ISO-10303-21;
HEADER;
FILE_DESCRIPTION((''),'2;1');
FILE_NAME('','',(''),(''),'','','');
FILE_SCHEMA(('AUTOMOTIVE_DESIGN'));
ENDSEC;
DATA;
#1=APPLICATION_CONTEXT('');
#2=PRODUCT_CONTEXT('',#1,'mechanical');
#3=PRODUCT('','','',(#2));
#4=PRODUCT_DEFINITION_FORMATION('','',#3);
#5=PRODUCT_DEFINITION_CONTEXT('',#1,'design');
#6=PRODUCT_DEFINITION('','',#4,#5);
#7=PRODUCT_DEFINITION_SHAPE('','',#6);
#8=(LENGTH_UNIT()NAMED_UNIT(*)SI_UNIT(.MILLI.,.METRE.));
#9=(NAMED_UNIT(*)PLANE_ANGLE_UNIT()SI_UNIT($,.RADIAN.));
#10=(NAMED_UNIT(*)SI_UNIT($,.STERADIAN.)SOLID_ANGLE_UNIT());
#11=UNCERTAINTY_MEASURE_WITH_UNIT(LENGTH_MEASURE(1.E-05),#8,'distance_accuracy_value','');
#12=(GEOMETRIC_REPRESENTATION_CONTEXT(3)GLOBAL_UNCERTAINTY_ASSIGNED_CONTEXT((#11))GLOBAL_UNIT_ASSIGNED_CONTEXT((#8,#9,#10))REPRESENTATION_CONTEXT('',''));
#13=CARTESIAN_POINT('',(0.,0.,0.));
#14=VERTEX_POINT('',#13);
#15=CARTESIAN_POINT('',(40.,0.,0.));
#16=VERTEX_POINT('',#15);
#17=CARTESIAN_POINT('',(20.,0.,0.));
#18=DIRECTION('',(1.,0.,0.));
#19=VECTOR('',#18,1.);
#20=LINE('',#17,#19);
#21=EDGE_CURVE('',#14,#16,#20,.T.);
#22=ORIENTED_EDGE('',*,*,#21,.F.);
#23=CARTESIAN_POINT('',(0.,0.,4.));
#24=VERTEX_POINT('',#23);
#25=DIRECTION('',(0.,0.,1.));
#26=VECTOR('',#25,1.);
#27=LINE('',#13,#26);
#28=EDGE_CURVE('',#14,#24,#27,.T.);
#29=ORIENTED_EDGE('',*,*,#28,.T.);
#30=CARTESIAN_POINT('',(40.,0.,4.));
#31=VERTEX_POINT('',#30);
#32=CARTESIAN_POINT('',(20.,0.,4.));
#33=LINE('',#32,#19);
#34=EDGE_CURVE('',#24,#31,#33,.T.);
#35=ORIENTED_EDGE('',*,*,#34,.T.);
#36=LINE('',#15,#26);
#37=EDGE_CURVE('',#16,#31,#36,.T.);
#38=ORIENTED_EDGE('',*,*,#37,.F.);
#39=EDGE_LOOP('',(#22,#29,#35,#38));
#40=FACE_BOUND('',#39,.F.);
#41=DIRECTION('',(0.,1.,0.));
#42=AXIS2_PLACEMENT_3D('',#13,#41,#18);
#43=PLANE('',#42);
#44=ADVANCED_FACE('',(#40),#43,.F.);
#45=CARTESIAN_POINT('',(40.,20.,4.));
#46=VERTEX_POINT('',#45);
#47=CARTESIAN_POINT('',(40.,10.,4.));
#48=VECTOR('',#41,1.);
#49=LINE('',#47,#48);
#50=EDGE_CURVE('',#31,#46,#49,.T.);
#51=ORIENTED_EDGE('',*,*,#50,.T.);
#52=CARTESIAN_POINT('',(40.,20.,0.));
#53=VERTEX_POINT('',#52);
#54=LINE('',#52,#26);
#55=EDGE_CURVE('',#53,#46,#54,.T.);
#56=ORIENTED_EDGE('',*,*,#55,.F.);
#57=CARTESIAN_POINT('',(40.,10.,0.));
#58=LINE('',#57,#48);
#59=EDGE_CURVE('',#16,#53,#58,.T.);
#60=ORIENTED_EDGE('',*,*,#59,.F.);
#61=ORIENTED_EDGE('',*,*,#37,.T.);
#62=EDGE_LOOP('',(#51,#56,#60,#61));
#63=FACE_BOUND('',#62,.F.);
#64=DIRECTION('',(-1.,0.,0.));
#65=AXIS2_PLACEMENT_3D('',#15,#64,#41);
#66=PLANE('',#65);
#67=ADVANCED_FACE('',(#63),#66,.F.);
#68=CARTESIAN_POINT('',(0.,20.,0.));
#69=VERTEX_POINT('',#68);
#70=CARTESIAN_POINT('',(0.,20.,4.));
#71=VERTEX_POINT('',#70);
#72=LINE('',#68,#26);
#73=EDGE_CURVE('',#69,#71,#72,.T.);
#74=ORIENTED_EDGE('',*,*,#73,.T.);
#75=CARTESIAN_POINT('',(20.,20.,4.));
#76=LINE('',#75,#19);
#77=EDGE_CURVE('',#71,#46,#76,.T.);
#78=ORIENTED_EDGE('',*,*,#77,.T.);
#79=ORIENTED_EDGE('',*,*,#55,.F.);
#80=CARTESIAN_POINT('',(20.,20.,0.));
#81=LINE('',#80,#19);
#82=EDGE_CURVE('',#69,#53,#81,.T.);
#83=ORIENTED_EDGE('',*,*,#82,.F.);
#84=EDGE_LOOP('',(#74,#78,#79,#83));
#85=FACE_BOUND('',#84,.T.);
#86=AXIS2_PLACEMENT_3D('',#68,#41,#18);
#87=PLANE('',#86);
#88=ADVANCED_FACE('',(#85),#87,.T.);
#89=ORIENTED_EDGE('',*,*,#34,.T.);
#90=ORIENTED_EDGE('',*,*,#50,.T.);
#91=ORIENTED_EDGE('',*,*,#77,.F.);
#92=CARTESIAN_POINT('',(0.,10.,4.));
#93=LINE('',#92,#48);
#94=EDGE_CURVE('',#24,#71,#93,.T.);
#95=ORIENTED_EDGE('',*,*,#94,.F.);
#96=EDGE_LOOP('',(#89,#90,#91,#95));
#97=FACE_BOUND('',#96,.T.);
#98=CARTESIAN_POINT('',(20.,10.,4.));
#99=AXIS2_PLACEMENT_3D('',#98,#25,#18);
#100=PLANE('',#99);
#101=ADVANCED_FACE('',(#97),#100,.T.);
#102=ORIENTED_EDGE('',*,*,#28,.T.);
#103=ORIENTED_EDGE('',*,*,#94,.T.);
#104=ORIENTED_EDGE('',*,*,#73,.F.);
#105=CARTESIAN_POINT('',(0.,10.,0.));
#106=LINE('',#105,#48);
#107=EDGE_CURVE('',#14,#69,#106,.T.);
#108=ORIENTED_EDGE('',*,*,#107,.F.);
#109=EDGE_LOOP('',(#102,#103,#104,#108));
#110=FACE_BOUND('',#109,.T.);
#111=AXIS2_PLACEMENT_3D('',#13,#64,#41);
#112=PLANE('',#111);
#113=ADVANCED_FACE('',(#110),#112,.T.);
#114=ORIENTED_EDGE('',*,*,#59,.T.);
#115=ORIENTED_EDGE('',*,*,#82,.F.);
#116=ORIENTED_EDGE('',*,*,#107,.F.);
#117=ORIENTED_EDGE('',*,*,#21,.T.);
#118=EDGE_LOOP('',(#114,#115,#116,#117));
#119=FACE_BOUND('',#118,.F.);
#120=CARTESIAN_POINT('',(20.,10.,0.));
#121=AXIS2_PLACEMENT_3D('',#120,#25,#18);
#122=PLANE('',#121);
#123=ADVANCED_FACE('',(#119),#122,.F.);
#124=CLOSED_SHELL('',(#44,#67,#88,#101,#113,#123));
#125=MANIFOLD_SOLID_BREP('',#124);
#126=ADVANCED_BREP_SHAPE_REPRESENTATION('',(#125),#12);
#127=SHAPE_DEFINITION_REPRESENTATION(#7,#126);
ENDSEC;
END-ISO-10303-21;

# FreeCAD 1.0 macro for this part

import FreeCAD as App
import Part
import Sketcher


def add_polygon(sketch, points):
    """Adds a closed chain of lines whose ends are joined by coincident constraints."""
    first, n = sketch.GeometryCount, len(points)
    for a, b in zip(points, points[1:] + points[:1]):
        sketch.addGeometry(Part.LineSegment(App.Vector(*a, 0), App.Vector(*b, 0)), False)
    for i in range(n):
        sketch.addConstraint(Sketcher.Constraint("Coincident", first + i, 2, first + (i + 1) % n, 1))

doc = App.newDocument("Part")
body = doc.addObject("PartDesign::Body", "Body")

# Sketch on XY plane
sketch1 = body.newObject("Sketcher::SketchObject", "Sketch")
sketch1.AttachmentSupport = (doc.getObject("XY_Plane"), [""])
sketch1.MapMode = "FlatFace"
add_polygon(sketch1, [(0, 20), (0, 0), (40, 0), (40, 20)])  # lines 0-3
sketch1.addConstraint([
    Sketcher.Constraint("Vertical", 0),
    Sketcher.Constraint("Horizontal", 1),
    Sketcher.Constraint("Vertical", 2),
    Sketcher.Constraint("Horizontal", 3),
    Sketcher.Constraint("Coincident", 0, 2, -1, 1),
    Sketcher.Constraint("DistanceX", 1, 1, 1, 2, 40.0),
    Sketcher.Constraint("DistanceY", 0, 2, 0, 1, 20.0),
])
pad1 = body.newObject("PartDesign::Pad", "Pad")
pad1.Profile = sketch1
pad1.Length = 4

doc.recompute()
